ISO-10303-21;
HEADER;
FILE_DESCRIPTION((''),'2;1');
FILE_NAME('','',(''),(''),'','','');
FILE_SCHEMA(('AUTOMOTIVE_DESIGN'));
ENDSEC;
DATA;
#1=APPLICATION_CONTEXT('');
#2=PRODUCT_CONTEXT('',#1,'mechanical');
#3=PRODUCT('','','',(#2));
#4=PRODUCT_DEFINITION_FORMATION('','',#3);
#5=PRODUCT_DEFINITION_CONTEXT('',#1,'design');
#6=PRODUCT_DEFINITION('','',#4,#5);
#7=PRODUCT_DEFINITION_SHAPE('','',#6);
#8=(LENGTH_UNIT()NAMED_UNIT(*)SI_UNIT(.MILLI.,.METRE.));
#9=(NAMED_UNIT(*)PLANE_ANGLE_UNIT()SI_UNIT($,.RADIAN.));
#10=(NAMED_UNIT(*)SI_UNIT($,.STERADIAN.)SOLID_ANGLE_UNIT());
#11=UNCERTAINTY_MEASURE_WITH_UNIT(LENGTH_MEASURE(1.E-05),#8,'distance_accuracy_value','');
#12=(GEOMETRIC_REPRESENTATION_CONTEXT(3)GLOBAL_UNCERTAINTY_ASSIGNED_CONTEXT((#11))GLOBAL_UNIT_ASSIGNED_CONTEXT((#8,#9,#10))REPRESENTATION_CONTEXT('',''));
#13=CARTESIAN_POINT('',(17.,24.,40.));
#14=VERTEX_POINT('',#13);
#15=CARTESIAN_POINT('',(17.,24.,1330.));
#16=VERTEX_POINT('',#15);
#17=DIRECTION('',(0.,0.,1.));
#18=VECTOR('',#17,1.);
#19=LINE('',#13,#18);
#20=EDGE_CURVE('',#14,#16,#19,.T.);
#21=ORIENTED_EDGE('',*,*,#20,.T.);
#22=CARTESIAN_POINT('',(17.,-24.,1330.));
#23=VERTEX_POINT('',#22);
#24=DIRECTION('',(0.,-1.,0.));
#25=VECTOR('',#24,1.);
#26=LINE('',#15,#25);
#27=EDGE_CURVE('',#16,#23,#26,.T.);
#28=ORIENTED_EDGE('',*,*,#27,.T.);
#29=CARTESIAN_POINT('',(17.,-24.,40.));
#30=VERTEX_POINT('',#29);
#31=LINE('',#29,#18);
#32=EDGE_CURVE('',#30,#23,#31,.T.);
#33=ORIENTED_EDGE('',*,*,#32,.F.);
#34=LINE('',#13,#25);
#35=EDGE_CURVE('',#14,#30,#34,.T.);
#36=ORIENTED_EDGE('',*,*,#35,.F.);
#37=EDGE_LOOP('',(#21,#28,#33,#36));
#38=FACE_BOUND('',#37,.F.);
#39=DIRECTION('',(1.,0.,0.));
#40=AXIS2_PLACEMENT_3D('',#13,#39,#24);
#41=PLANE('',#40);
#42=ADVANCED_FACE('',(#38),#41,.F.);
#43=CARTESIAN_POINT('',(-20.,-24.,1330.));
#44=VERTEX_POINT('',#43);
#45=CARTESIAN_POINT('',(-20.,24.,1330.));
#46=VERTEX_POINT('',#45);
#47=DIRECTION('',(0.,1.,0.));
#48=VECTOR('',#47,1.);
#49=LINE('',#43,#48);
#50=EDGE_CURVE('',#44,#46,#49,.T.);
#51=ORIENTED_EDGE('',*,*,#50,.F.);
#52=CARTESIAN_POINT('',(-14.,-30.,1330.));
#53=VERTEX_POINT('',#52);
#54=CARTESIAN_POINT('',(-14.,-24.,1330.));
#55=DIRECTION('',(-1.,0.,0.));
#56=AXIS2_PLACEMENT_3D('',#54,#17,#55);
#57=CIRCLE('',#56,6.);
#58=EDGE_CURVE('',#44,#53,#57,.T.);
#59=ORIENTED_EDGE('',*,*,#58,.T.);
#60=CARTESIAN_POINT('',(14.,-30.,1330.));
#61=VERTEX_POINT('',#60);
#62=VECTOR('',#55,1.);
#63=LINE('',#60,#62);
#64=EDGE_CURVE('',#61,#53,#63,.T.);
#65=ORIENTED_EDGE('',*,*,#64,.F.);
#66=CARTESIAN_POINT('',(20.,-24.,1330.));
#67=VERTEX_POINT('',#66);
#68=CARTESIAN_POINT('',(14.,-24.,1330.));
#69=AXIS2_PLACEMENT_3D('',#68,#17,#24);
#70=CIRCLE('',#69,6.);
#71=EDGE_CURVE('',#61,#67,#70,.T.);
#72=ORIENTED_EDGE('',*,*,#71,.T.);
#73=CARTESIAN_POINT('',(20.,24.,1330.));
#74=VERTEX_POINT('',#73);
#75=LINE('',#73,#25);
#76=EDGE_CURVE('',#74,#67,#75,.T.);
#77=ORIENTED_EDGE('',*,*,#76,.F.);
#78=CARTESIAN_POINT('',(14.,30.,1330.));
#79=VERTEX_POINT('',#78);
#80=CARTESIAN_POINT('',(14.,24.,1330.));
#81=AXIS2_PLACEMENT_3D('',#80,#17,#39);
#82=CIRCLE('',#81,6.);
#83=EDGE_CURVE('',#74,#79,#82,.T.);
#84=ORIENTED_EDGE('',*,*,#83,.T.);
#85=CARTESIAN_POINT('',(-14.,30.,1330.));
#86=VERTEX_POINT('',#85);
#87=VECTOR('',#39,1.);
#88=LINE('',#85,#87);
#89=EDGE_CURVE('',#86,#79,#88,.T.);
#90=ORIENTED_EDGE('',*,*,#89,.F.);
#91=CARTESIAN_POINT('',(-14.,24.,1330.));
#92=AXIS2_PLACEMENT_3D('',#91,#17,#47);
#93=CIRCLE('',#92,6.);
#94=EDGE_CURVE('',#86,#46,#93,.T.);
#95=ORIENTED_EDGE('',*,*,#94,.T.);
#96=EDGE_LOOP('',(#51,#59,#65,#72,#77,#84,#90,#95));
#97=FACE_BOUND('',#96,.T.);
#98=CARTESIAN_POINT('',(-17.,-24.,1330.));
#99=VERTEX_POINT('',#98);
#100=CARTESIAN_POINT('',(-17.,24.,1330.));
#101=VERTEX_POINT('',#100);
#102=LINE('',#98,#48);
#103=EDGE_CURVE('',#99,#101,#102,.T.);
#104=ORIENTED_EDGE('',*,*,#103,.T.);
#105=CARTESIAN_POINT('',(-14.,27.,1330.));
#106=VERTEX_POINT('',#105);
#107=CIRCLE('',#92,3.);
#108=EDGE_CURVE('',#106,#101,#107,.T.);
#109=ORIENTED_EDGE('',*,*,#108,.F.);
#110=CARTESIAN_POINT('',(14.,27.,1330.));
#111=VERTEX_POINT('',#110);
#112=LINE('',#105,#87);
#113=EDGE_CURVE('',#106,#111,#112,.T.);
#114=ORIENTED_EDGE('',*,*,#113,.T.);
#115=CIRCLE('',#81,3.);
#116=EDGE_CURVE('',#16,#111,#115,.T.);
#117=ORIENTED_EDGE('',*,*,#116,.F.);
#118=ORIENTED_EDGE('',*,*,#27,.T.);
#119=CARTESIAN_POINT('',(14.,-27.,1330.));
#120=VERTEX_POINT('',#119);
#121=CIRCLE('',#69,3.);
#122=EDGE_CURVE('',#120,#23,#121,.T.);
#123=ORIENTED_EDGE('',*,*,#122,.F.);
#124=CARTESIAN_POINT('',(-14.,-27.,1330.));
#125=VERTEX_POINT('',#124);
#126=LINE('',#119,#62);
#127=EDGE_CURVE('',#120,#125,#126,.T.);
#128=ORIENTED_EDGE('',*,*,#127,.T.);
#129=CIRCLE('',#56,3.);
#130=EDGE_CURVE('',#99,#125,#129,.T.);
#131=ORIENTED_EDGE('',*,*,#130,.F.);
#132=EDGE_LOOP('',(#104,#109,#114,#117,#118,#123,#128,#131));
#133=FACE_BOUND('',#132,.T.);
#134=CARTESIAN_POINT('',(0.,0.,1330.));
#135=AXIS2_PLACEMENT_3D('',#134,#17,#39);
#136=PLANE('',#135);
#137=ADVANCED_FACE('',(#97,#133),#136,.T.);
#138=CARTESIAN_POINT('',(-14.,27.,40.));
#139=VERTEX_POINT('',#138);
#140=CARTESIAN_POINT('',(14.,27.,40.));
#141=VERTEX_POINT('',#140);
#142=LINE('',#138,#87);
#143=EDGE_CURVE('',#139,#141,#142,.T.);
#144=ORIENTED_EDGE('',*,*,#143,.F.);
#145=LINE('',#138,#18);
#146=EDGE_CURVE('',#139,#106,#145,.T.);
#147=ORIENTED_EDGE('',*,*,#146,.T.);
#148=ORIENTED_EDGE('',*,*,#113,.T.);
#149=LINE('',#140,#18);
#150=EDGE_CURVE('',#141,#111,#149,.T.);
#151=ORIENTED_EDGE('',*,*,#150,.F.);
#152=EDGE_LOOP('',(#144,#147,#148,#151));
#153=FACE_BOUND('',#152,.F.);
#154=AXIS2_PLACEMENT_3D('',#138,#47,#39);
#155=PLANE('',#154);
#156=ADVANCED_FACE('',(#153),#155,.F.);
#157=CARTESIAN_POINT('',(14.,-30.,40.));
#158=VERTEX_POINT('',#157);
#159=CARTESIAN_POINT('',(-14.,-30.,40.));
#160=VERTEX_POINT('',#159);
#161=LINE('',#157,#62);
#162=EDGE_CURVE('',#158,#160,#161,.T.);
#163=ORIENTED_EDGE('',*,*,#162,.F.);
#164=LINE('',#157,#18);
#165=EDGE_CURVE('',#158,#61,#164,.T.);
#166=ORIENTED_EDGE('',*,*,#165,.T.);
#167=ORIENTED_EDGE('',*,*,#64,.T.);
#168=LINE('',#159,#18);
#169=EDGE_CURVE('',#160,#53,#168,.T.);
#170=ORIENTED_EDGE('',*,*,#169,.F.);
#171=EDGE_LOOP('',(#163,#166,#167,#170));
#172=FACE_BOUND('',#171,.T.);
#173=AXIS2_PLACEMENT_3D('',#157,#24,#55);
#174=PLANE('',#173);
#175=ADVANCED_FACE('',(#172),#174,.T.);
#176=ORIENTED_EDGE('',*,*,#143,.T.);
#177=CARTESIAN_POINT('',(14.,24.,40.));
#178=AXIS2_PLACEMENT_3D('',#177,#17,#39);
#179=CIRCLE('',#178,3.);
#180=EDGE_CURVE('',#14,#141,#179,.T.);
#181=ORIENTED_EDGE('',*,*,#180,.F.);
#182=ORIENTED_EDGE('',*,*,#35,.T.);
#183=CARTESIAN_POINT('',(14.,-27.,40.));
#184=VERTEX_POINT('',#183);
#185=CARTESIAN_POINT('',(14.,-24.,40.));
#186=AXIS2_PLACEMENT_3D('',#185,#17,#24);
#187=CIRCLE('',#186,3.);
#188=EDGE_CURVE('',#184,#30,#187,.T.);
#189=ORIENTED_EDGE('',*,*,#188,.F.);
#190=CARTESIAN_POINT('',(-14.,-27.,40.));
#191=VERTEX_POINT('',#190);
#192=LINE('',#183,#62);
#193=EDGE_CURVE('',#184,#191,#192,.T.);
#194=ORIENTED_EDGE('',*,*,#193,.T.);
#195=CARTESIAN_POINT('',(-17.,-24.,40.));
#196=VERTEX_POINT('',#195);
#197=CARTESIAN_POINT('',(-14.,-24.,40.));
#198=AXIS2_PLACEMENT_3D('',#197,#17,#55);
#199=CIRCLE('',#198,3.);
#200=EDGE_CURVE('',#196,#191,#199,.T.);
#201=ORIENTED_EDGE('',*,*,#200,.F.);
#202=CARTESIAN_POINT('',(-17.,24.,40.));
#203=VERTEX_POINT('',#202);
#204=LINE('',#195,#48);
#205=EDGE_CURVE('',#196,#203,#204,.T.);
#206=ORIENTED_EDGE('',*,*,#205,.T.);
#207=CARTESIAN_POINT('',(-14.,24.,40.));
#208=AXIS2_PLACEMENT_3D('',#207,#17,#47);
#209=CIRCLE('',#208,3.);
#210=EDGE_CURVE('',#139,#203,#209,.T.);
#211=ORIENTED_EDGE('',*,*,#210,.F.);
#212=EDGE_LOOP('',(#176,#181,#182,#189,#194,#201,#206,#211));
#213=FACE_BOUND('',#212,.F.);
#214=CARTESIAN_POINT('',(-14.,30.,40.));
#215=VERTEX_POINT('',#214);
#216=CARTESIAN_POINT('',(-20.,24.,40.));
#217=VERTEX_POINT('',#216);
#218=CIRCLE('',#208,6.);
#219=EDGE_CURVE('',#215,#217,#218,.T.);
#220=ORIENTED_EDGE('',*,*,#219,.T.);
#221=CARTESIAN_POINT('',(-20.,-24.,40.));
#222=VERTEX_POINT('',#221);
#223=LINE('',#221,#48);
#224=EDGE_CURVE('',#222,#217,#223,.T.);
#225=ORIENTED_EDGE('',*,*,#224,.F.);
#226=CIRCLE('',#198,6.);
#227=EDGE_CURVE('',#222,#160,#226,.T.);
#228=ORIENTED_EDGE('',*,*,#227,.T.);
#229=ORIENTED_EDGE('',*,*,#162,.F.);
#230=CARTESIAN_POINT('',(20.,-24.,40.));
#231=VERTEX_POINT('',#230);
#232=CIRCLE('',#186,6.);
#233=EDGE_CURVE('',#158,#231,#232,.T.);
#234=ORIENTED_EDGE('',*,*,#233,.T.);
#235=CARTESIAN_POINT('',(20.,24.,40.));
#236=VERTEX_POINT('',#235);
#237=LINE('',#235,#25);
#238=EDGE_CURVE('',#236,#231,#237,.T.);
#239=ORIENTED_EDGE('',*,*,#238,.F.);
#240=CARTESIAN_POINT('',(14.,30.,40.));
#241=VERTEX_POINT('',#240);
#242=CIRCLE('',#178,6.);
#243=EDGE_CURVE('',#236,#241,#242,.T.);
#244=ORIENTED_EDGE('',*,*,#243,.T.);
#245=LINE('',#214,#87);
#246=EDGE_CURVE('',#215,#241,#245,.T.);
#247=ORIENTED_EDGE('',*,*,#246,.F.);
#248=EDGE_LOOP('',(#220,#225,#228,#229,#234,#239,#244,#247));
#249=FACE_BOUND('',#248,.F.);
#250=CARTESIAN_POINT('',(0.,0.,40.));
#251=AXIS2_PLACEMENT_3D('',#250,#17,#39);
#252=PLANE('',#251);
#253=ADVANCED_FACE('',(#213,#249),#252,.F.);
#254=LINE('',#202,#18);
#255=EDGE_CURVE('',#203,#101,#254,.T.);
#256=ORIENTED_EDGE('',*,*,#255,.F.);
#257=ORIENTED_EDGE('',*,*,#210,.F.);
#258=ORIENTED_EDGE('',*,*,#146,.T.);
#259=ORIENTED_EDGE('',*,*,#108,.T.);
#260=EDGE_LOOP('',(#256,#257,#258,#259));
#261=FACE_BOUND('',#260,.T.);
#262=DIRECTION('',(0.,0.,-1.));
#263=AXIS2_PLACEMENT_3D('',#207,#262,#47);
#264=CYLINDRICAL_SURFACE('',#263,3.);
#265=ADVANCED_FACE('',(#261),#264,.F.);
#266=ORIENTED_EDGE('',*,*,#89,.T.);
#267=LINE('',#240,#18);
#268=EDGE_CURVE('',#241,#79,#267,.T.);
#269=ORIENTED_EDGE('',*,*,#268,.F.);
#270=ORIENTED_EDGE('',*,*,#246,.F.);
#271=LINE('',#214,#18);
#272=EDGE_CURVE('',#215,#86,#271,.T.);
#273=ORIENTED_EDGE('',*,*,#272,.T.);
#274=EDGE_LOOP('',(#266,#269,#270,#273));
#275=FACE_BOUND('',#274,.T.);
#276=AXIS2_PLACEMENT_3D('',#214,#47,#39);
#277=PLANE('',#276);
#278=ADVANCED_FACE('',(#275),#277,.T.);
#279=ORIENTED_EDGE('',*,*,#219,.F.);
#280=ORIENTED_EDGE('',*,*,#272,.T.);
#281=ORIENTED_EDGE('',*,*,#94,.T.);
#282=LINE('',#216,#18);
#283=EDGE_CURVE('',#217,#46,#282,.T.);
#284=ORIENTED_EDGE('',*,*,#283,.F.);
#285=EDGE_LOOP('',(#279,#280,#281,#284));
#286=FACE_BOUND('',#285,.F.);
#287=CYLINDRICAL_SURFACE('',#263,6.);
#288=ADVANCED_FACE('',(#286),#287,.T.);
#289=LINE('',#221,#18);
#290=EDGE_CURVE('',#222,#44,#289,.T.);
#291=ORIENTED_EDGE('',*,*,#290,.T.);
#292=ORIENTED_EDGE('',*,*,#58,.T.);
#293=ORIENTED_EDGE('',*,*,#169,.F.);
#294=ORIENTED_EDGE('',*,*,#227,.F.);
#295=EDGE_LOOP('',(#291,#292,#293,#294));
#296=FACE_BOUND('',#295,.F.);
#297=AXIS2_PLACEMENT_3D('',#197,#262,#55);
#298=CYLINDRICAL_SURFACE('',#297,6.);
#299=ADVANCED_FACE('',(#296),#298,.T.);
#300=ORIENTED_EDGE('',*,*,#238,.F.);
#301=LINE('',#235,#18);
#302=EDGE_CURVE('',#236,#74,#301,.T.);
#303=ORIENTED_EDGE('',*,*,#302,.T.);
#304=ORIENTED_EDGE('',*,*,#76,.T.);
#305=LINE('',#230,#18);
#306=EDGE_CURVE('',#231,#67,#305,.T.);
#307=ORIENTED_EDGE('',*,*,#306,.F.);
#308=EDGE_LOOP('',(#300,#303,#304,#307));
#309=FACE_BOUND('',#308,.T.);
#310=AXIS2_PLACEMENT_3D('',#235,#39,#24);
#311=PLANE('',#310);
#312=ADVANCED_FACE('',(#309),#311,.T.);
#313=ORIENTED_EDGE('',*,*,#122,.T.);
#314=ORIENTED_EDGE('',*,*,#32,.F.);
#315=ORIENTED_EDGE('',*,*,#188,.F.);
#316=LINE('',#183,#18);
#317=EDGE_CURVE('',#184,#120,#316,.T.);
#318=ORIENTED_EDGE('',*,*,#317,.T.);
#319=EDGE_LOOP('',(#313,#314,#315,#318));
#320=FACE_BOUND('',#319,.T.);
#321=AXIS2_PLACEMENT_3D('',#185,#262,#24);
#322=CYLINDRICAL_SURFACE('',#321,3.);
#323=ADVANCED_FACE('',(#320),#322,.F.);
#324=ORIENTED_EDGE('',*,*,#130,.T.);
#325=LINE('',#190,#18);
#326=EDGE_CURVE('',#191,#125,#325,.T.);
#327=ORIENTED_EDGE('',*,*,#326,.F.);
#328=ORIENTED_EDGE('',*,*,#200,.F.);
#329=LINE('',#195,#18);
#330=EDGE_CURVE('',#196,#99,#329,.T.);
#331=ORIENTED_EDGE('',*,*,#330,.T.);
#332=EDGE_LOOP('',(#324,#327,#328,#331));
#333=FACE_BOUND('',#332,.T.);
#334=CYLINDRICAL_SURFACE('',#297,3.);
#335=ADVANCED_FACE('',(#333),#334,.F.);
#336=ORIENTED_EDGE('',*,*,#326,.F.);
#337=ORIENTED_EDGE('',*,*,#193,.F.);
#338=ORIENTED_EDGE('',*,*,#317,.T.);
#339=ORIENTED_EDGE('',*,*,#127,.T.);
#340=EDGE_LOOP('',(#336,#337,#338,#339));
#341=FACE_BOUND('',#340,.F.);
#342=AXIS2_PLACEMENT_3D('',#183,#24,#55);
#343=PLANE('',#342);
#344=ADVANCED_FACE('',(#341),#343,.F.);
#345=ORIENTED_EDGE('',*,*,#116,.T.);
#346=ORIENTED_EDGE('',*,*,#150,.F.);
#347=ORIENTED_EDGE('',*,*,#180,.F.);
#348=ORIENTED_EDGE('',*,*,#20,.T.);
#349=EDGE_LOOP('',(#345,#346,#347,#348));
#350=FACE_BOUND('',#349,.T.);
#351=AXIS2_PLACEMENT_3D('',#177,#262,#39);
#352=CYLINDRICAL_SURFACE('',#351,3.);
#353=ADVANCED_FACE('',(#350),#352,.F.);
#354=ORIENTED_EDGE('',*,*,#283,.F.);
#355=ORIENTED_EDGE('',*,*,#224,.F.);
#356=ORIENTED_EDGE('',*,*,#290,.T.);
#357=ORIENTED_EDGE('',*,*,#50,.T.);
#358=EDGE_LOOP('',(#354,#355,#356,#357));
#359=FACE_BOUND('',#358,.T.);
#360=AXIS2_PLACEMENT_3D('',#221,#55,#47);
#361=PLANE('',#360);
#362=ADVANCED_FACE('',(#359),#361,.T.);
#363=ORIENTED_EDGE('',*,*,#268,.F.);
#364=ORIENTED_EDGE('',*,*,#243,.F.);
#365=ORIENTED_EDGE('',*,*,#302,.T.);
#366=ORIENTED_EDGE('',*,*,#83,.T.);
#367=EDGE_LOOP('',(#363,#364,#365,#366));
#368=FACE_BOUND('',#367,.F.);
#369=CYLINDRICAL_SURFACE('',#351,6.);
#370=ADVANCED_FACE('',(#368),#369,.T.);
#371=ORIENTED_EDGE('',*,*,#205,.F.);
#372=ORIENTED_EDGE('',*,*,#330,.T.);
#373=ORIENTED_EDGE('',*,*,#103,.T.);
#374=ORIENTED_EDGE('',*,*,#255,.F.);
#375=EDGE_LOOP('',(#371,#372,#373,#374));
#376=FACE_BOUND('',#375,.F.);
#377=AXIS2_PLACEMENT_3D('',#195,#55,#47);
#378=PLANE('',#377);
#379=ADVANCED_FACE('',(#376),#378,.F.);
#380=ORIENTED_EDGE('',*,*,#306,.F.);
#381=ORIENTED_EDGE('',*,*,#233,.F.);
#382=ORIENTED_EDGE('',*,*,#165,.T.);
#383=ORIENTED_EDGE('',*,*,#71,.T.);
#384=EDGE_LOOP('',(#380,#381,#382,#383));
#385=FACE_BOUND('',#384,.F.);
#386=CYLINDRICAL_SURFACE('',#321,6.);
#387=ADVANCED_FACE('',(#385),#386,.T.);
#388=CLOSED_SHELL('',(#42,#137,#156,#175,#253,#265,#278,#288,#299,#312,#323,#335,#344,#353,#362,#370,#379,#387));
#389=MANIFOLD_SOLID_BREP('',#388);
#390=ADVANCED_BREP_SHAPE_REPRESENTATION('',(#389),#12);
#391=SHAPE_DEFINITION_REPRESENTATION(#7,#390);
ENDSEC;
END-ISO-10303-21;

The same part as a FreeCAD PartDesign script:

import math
import FreeCAD as App
import Part
import Sketcher
Q = App.Units.Quantity

doc = App.newDocument("Part")
params = doc.addObject("Spreadsheet::Sheet", "Params")
for row, (alias, value) in enumerate([
    ("sketch1_radius", "6 mm"),
    ("sketch1_radius2", "3 mm"),
    ("pad1_length", "1290 mm"),
], start=1):
    params.set(f"A{row}", alias)
    params.set(f"B{row}", "=" + value)
    params.setAlias(f"B{row}", alias)

body = doc.addObject("PartDesign::Body", "Body")

# Sketch on XY plane
sketch1 = doc.addObject("Sketcher::SketchObject", "Sketch")
body.addObject(sketch1)
sketch1.AttachmentSupport = (doc.XY_Plane, [""])
sketch1.MapMode = "FlatFace"
sketch1.AttachmentOffset = App.Placement(App.Vector(0, 0, 40), App.Rotation())
sketch1.addGeometry(Part.LineSegment(App.Vector(-20, 24, 0), App.Vector(-20, -24, 0)), False)
sketch1.addGeometry(Part.ArcOfCircle(Part.Circle(App.Vector(-14, -24, 0), App.Vector(0, 0, 1), 6), math.radians(180), math.radians(270)), False)
sketch1.addGeometry(Part.LineSegment(App.Vector(-14, -30, 0), App.Vector(14, -30, 0)), False)
sketch1.addGeometry(Part.ArcOfCircle(Part.Circle(App.Vector(14, -24, 0), App.Vector(0, 0, 1), 6), math.radians(-90), math.radians(0)), False)
sketch1.addGeometry(Part.LineSegment(App.Vector(20, -24, 0), App.Vector(20, 24, 0)), False)
sketch1.addGeometry(Part.ArcOfCircle(Part.Circle(App.Vector(14, 24, 0), App.Vector(0, 0, 1), 6), math.radians(0), math.radians(90)), False)
sketch1.addGeometry(Part.LineSegment(App.Vector(14, 30, 0), App.Vector(-14, 30, 0)), False)
sketch1.addGeometry(Part.ArcOfCircle(Part.Circle(App.Vector(-14, 24, 0), App.Vector(0, 0, 1), 6), math.radians(90), math.radians(180)), False)
sketch1.addGeometry(Part.ArcOfCircle(Part.Circle(App.Vector(-14, 24, 0), App.Vector(0, 0, 1), 3), math.radians(90), math.radians(180)), False)
sketch1.addGeometry(Part.LineSegment(App.Vector(-14, 27, 0), App.Vector(14, 27, 0)), False)
sketch1.addGeometry(Part.ArcOfCircle(Part.Circle(App.Vector(14, 24, 0), App.Vector(0, 0, 1), 3), math.radians(0), math.radians(90)), False)
sketch1.addGeometry(Part.LineSegment(App.Vector(17, 24, 0), App.Vector(17, -24, 0)), False)
sketch1.addGeometry(Part.ArcOfCircle(Part.Circle(App.Vector(14, -24, 0), App.Vector(0, 0, 1), 3), math.radians(-90), math.radians(0)), False)
sketch1.addGeometry(Part.LineSegment(App.Vector(14, -27, 0), App.Vector(-14, -27, 0)), False)
sketch1.addGeometry(Part.ArcOfCircle(Part.Circle(App.Vector(-14, -24, 0), App.Vector(0, 0, 1), 3), math.radians(180), math.radians(270)), False)
sketch1.addGeometry(Part.LineSegment(App.Vector(-17, -24, 0), App.Vector(-17, 24, 0)), False)
sketch1.addConstraint(Sketcher.Constraint("Tangent", 0, 2, 1, 1))
sketch1.addConstraint(Sketcher.Constraint("Tangent", 1, 2, 2, 1))
sketch1.addConstraint(Sketcher.Constraint("Tangent", 2, 2, 3, 1))
sketch1.addConstraint(Sketcher.Constraint("Tangent", 3, 2, 4, 1))
sketch1.addConstraint(Sketcher.Constraint("Tangent", 4, 2, 5, 1))
sketch1.addConstraint(Sketcher.Constraint("Tangent", 5, 2, 6, 1))
sketch1.addConstraint(Sketcher.Constraint("Tangent", 6, 2, 7, 1))
sketch1.addConstraint(Sketcher.Constraint("Tangent", 7, 2, 0, 1))
sketch1.addConstraint(Sketcher.Constraint("Tangent", 8, 1, 9, 1))
sketch1.addConstraint(Sketcher.Constraint("Tangent", 9, 2, 10, 2))
sketch1.addConstraint(Sketcher.Constraint("Tangent", 10, 1, 11, 1))
sketch1.addConstraint(Sketcher.Constraint("Tangent", 11, 2, 12, 2))
sketch1.addConstraint(Sketcher.Constraint("Tangent", 12, 1, 13, 1))
sketch1.addConstraint(Sketcher.Constraint("Tangent", 13, 2, 14, 2))
sketch1.addConstraint(Sketcher.Constraint("Tangent", 14, 1, 15, 1))
sketch1.addConstraint(Sketcher.Constraint("Tangent", 15, 2, 8, 2))
sketch1.addConstraint(Sketcher.Constraint("Vertical", 0))
sketch1.addConstraint(Sketcher.Constraint("Horizontal", 2))
sketch1.addConstraint(Sketcher.Constraint("Vertical", 4))
sketch1.addConstraint(Sketcher.Constraint("Horizontal", 6))
sketch1.addConstraint(Sketcher.Constraint("Horizontal", 9))
sketch1.addConstraint(Sketcher.Constraint("Vertical", 11))
sketch1.addConstraint(Sketcher.Constraint("Horizontal", 13))
sketch1.addConstraint(Sketcher.Constraint("Vertical", 15))
sketch1.addConstraint(Sketcher.Constraint("Coincident", 8, 3, 7, 3))
sketch1.addConstraint(Sketcher.Constraint("Coincident", 10, 3, 5, 3))
sketch1.addConstraint(Sketcher.Constraint("Coincident", 12, 3, 3, 3))
sketch1.addConstraint(Sketcher.Constraint("Equal", 1, 3))
sketch1.addConstraint(Sketcher.Constraint("Equal", 3, 5))
sketch1.addConstraint(Sketcher.Constraint("Equal", 5, 7))
sketch1.addConstraint(Sketcher.Constraint("Equal", 12, 14))
sketch1.addConstraint(Sketcher.Constraint("Symmetric", 1, 3, 5, 3, -1, 1))
sketch1.addConstraint(Sketcher.Constraint("Radius", 1, Q("6 mm")))
sketch1.addConstraint(Sketcher.Constraint("Radius", 8, Q("3 mm")))
sketch1.addConstraint(Sketcher.Constraint("DistanceX", 0, 2, -1, 1, Q("20 mm")))
sketch1.addConstraint(Sketcher.Constraint("DistanceY", 1, 2, -1, 1, Q("30 mm")))
sketch1.setExpression("Constraints[32]", "Params.sketch1_radius")
sketch1.setExpression("Constraints[33]", "Params.sketch1_radius2")
pad1 = doc.addObject("PartDesign::Pad", "Pad")
body.addObject(pad1)
pad1.Profile = sketch1
pad1.setExpression("Length", "Params.pad1_length")

doc.recompute()
